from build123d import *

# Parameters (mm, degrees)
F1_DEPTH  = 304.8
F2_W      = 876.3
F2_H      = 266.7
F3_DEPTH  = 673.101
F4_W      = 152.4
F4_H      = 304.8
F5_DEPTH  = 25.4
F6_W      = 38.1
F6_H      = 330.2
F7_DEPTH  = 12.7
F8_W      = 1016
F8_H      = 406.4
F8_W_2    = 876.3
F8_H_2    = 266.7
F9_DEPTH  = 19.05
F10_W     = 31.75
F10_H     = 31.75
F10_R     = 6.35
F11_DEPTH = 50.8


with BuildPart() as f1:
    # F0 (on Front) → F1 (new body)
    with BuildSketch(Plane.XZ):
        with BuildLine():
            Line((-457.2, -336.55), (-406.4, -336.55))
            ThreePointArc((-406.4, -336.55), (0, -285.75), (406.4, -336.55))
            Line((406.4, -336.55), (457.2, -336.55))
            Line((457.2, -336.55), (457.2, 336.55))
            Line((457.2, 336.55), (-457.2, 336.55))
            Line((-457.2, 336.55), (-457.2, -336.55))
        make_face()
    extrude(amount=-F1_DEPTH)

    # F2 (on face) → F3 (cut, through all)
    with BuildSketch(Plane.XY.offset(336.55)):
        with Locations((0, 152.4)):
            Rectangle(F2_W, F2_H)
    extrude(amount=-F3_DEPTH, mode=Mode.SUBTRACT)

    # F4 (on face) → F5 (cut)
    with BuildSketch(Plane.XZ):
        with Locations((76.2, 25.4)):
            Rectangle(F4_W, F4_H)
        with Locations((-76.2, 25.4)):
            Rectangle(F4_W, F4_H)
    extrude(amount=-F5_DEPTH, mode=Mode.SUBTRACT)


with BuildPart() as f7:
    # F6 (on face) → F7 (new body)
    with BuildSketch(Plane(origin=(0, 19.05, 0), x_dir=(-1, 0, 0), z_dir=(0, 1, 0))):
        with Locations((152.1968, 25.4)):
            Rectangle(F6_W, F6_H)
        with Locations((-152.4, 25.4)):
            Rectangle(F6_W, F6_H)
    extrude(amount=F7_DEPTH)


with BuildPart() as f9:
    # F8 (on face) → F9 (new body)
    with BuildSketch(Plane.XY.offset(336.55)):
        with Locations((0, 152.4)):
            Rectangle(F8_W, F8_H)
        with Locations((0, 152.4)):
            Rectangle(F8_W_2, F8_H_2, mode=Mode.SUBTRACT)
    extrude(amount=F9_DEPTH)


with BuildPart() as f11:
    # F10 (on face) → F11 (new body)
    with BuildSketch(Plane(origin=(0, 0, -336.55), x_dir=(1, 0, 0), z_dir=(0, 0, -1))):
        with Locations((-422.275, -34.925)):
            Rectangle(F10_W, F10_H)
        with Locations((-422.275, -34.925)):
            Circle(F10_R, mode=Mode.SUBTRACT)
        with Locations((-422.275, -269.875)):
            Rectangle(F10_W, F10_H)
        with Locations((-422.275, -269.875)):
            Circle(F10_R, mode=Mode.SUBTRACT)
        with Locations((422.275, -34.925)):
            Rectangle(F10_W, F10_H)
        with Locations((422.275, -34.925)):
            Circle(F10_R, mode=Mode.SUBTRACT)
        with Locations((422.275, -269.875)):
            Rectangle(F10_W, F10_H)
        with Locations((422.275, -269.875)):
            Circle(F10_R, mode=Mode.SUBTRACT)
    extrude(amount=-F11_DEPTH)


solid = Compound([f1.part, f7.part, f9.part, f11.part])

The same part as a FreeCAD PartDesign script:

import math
import FreeCAD as App
import Part
import Sketcher

V = App.Vector
Q = App.Units.Quantity

doc = App.newDocument("Part")
body = doc.addObject("PartDesign::Body", "Body")

sketch1 = body.newObject("Sketcher::SketchObject", "Sketch")
sketch1.AttachmentSupport = (doc.getObject("XZ_Plane"), [""])
sketch1.MapMode = "FlatFace"
sketch1.addGeometry(Part.LineSegment(V(-457, -337, 0), V(-406, -337, 0)), False)
sketch1.addGeometry(Part.ArcOfCircle(Part.Circle(V(0, -1937, 0), V(0, 0, 1), 1651), math.radians(76), math.radians(104)), False)
sketch1.addGeometry(Part.LineSegment(V(406, -337, 0), V(457, -337, 0)), False)
sketch1.addGeometry(Part.LineSegment(V(457, -337, 0), V(457, 337, 0)), False)
sketch1.addGeometry(Part.LineSegment(V(457, 337, 0), V(-457, 337, 0)), False)
sketch1.addGeometry(Part.LineSegment(V(-457, 337, 0), V(-457, -337, 0)), False)
sketch1.addConstraint(Sketcher.Constraint("Coincident", 0, 2, 1, 2))
sketch1.addConstraint(Sketcher.Constraint("Coincident", 1, 1, 2, 1))
sketch1.addConstraint(Sketcher.Constraint("Coincident", 2, 2, 3, 1))
sketch1.addConstraint(Sketcher.Constraint("Coincident", 3, 2, 4, 1))
sketch1.addConstraint(Sketcher.Constraint("Coincident", 4, 2, 5, 1))
sketch1.addConstraint(Sketcher.Constraint("Coincident", 5, 2, 0, 1))
sketch1.addConstraint(Sketcher.Constraint("Horizontal", 0))
sketch1.addConstraint(Sketcher.Constraint("Horizontal", 2))
sketch1.addConstraint(Sketcher.Constraint("Vertical", 3))
sketch1.addConstraint(Sketcher.Constraint("Horizontal", 4))
sketch1.addConstraint(Sketcher.Constraint("Vertical", 5))
sketch1.addConstraint(Sketcher.Constraint("Symmetric", 2, 2, 4, 2, -1, 1))
sketch1.addConstraint(Sketcher.Constraint("PointOnObject", 1, 3, -2))
sketch1.addConstraint(Sketcher.Constraint("Horizontal", 2, 2, 5, 2))
sketch1.addConstraint(Sketcher.Constraint("Radius", 1, Q("65 in")))
sketch1.addConstraint(Sketcher.Constraint("DistanceX", 0, 1, 0, 2, Q("2 in")))
sketch1.addConstraint(Sketcher.Constraint("DistanceX", 4, 2, 4, 1, Q("36 in")))
sketch1.addConstraint(Sketcher.Constraint("DistanceY", 3, 1, 3, 2, Q("26.5 in")))
pad1 = body.newObject("PartDesign::Pad", "Pad")
pad1.Profile = sketch1
pad1.Length = Q("12 in")
pad1.Reversed = True

sketch2 = body.newObject("Sketcher::SketchObject", "Sketch001")
sketch2.AttachmentSupport = (doc.getObject("XY_Plane"), [""])
sketch2.MapMode = "FlatFace"
sketch2.AttachmentOffset = App.Placement(V(0, 0, 13.25 * 25.4), App.Rotation())
sketch2.addGeometry(Part.LineSegment(V(-438, 286, 0), V(-438, 19, 0)), False)
sketch2.addGeometry(Part.LineSegment(V(-438, 19, 0), V(438, 19, 0)), False)
sketch2.addGeometry(Part.LineSegment(V(438, 19, 0), V(438, 286, 0)), False)
sketch2.addGeometry(Part.LineSegment(V(438, 286, 0), V(-438, 286, 0)), False)
sketch2.addConstraint(Sketcher.Constraint("Coincident", 0, 2, 1, 1))
sketch2.addConstraint(Sketcher.Constraint("Coincident", 1, 2, 2, 1))
sketch2.addConstraint(Sketcher.Constraint("Coincident", 2, 2, 3, 1))
sketch2.addConstraint(Sketcher.Constraint("Coincident", 3, 2, 0, 1))
sketch2.addConstraint(Sketcher.Constraint("Vertical", 0))
sketch2.addConstraint(Sketcher.Constraint("Horizontal", 1))
sketch2.addConstraint(Sketcher.Constraint("Vertical", 2))
sketch2.addConstraint(Sketcher.Constraint("Horizontal", 3))
sketch2.addConstraint(Sketcher.Constraint("DistanceX", 1, 1, 1, 2, Q("34.5 in")))
sketch2.addConstraint(Sketcher.Constraint("DistanceY", 0, 2, 0, 1, Q("10.5 in")))
sketch2.addConstraint(Sketcher.Constraint("DistanceX", 0, 2, -1, 1, Q("17.25 in")))
sketch2.addConstraint(Sketcher.Constraint("DistanceY", -1, 1, 0, 2, Q("0.75 in")))
pocket1 = body.newObject("PartDesign::Pocket", "Pocket")
pocket1.Profile = sketch2
pocket1.Type = "ThroughAll"

sketch3 = body.newObject("Sketcher::SketchObject", "Sketch002")
sketch3.AttachmentSupport = (doc.getObject("XZ_Plane"), [""])
sketch3.MapMode = "FlatFace"
sketch3.addGeometry(Part.LineSegment(V(152, -127, 0), V(152, 178, 0)), False)
sketch3.addGeometry(Part.LineSegment(V(152, 178, 0), V(-152, 178, 0)), False)
sketch3.addGeometry(Part.LineSegment(V(-152, 178, 0), V(-152, -127, 0)), False)
sketch3.addGeometry(Part.LineSegment(V(-152, -127, 0), V(152, -127, 0)), False)
sketch3.addConstraint(Sketcher.Constraint("Coincident", 0, 2, 1, 1))
sketch3.addConstraint(Sketcher.Constraint("Coincident", 1, 2, 2, 1))
sketch3.addConstraint(Sketcher.Constraint("Coincident", 2, 2, 3, 1))
sketch3.addConstraint(Sketcher.Constraint("Coincident", 3, 2, 0, 1))
sketch3.addConstraint(Sketcher.Constraint("Vertical", 0))
sketch3.addConstraint(Sketcher.Constraint("Horizontal", 1))
sketch3.addConstraint(Sketcher.Constraint("Vertical", 2))
sketch3.addConstraint(Sketcher.Constraint("Horizontal", 3))
sketch3.addConstraint(Sketcher.Constraint("Equal", 3, 0))
sketch3.addConstraint(Sketcher.Constraint("DistanceX", 1, 2, 1, 1, Q("12 in")))
sketch3.addConstraint(Sketcher.Constraint("DistanceX", -1, 1, 0, 2, Q("6 in")))
sketch3.addConstraint(Sketcher.Constraint("DistanceY", -1, 1, 0, 2, Q("7 in")))
pocket2 = body.newObject("PartDesign::Pocket", "Pocket001")
pocket2.Profile = sketch3
pocket2.Length = Q("1 in")
body2 = doc.addObject("PartDesign::Body", "Body001")
body2.AllowCompound = True

sketch4 = body2.newObject("Sketcher::SketchObject", "Sketch003")
sketch4.AttachmentSupport = (doc.getObject("XZ_Plane001"), [""])
sketch4.MapMode = "FlatFace"
sketch4.AttachmentOffset = App.Placement(V(0, 0, -0.75 * 25.4), App.Rotation())
sketch4.addGeometry(Part.LineSegment(V(-133, 190, 0), V(-133, -140, 0)), False)
sketch4.addGeometry(Part.LineSegment(V(-133, -140, 0), V(-171, -140, 0)), False)
sketch4.addGeometry(Part.LineSegment(V(-171, -140, 0), V(-171, 190, 0)), False)
sketch4.addGeometry(Part.LineSegment(V(-171, 190, 0), V(-133, 190, 0)), False)
sketch4.addGeometry(Part.LineSegment(V(171, 190, 0), V(171, -140, 0)), False)
sketch4.addGeometry(Part.LineSegment(V(171, -140, 0), V(133, -140, 0)), False)
sketch4.addGeometry(Part.LineSegment(V(133, -140, 0), V(133, 190, 0)), False)
sketch4.addGeometry(Part.LineSegment(V(133, 190, 0), V(171, 190, 0)), False)
sketch4.addConstraint(Sketcher.Constraint("Coincident", 0, 2, 1, 1))
sketch4.addConstraint(Sketcher.Constraint("Coincident", 1, 2, 2, 1))
sketch4.addConstraint(Sketcher.Constraint("Coincident", 2, 2, 3, 1))
sketch4.addConstraint(Sketcher.Constraint("Coincident", 3, 2, 0, 1))
sketch4.addConstraint(Sketcher.Constraint("Coincident", 4, 2, 5, 1))
sketch4.addConstraint(Sketcher.Constraint("Coincident", 5, 2, 6, 1))
sketch4.addConstraint(Sketcher.Constraint("Coincident", 6, 2, 7, 1))
sketch4.addConstraint(Sketcher.Constraint("Coincident", 7, 2, 4, 1))
sketch4.addConstraint(Sketcher.Constraint("Vertical", 0))
sketch4.addConstraint(Sketcher.Constraint("Horizontal", 1))
sketch4.addConstraint(Sketcher.Constraint("Vertical", 2))
sketch4.addConstraint(Sketcher.Constraint("Horizontal", 3))
sketch4.addConstraint(Sketcher.Constraint("Vertical", 4))
sketch4.addConstraint(Sketcher.Constraint("Horizontal", 5))
sketch4.addConstraint(Sketcher.Constraint("Vertical", 6))
sketch4.addConstraint(Sketcher.Constraint("Horizontal", 7))
sketch4.addConstraint(Sketcher.Constraint("Horizontal", 1, 2, 4, 2))
sketch4.addConstraint(Sketcher.Constraint("Horizontal", 3, 2, 6, 2))
sketch4.addConstraint(Sketcher.Constraint("Equal", 3, 5))
sketch4.addConstraint(Sketcher.Constraint("DistanceY", 0, 2, 0, 1, Q("13 in")))
sketch4.addConstraint(Sketcher.Constraint("DistanceX", 1, 2, 1, 1, Q("1.5 in")))
sketch4.addConstraint(Sketcher.Constraint("DistanceY", 0, 2, -1, 1, Q("5.5 in")))
sketch4.addConstraint(Sketcher.Constraint("DistanceX", -1, 1, 4, 2, Q("6.75 in")))
sketch4.addConstraint(Sketcher.Constraint("DistanceX", 0, 2, -1, 1, Q("5.242 in")))
pad2 = body2.newObject("PartDesign::Pad", "Pad001")
pad2.Profile = sketch4
pad2.Length = Q("0.5 in")
pad2.Reversed = True
body3 = doc.addObject("PartDesign::Body", "Body002")

sketch5 = body3.newObject("Sketcher::SketchObject", "Sketch004")
sketch5.AttachmentSupport = (doc.getObject("XY_Plane002"), [""])
sketch5.MapMode = "FlatFace"
sketch5.AttachmentOffset = App.Placement(V(0, 0, 13.25 * 25.4), App.Rotation())
sketch5.addGeometry(Part.LineSegment(V(-508, 356, 0), V(-508, -51, 0)), False)
sketch5.addGeometry(Part.LineSegment(V(-508, -51, 0), V(508, -51, 0)), False)
sketch5.addGeometry(Part.LineSegment(V(508, -51, 0), V(508, 356, 0)), False)
sketch5.addGeometry(Part.LineSegment(V(508, 356, 0), V(-508, 356, 0)), False)
sketch5.addGeometry(Part.LineSegment(V(438, 19, 0), V(-438, 19, 0)), False)
sketch5.addGeometry(Part.LineSegment(V(-438, 19, 0), V(-438, 286, 0)), False)
sketch5.addGeometry(Part.LineSegment(V(-438, 286, 0), V(438, 286, 0)), False)
sketch5.addGeometry(Part.LineSegment(V(438, 286, 0), V(438, 19, 0)), False)
sketch5.addConstraint(Sketcher.Constraint("Coincident", 0, 2, 1, 1))
sketch5.addConstraint(Sketcher.Constraint("Coincident", 1, 2, 2, 1))
sketch5.addConstraint(Sketcher.Constraint("Coincident", 2, 2, 3, 1))
sketch5.addConstraint(Sketcher.Constraint("Coincident", 3, 2, 0, 1))
sketch5.addConstraint(Sketcher.Constraint("Coincident", 4, 2, 5, 1))
sketch5.addConstraint(Sketcher.Constraint("Coincident", 5, 2, 6, 1))
sketch5.addConstraint(Sketcher.Constraint("Coincident", 6, 2, 7, 1))
sketch5.addConstraint(Sketcher.Constraint("Coincident", 7, 2, 4, 1))
sketch5.addConstraint(Sketcher.Constraint("Vertical", 0))
sketch5.addConstraint(Sketcher.Constraint("Horizontal", 1))
sketch5.addConstraint(Sketcher.Constraint("Vertical", 2))
sketch5.addConstraint(Sketcher.Constraint("Horizontal", 3))
sketch5.addConstraint(Sketcher.Constraint("Horizontal", 4))
sketch5.addConstraint(Sketcher.Constraint("Vertical", 5))
sketch5.addConstraint(Sketcher.Constraint("Horizontal", 6))
sketch5.addConstraint(Sketcher.Constraint("Vertical", 7))
sketch5.addConstraint(Sketcher.Constraint("DistanceX", 1, 1, 1, 2, Q("40 in")))
sketch5.addConstraint(Sketcher.Constraint("DistanceY", 0, 2, 0, 1, Q("16 in")))
sketch5.addConstraint(Sketcher.Constraint("DistanceX", 4, 2, 4, 1, Q("34.5 in")))
sketch5.addConstraint(Sketcher.Constraint("DistanceY", 5, 1, 5, 2, Q("10.5 in")))
sketch5.addConstraint(Sketcher.Constraint("DistanceX", 0, 2, -1, 1, Q("20 in")))
sketch5.addConstraint(Sketcher.Constraint("DistanceY", 0, 2, -1, 1, Q("2 in")))
sketch5.addConstraint(Sketcher.Constraint("DistanceX", 4, 2, -1, 1, Q("17.25 in")))
sketch5.addConstraint(Sketcher.Constraint("DistanceY", -1, 1, 4, 2, Q("0.75 in")))
pad3 = body3.newObject("PartDesign::Pad", "Pad002")
pad3.Profile = sketch5
pad3.Length = Q("0.75 in")
body4 = doc.addObject("PartDesign::Body", "Body003")
body4.AllowCompound = True

sketch6 = body4.newObject("Sketcher::SketchObject", "Sketch005")
sketch6.AttachmentSupport = (doc.getObject("XY_Plane003"), [""])
sketch6.MapMode = "FlatFace"
sketch6.AttachmentOffset = App.Placement(V(0, 0, -13.25 * 25.4), App.Rotation())
sketch6.addGeometry(Part.LineSegment(V(-438, 19, 0), V(-438, 51, 0)), False)
sketch6.addGeometry(Part.LineSegment(V(-438, 51, 0), V(-406, 51, 0)), False)
sketch6.addGeometry(Part.LineSegment(V(-406, 51, 0), V(-406, 19, 0)), False)
sketch6.addGeometry(Part.LineSegment(V(-406, 19, 0), V(-438, 19, 0)), False)
sketch6.addGeometry(Part.Circle(V(-422, 35, 0), V(0, 0, 1), 6), False)
sketch6.addGeometry(Part.LineSegment(V(-438, 254, 0), V(-438, 286, 0)), False)
sketch6.addGeometry(Part.LineSegment(V(-438, 286, 0), V(-406, 286, 0)), False)
sketch6.addGeometry(Part.LineSegment(V(-406, 286, 0), V(-406, 254, 0)), False)
sketch6.addGeometry(Part.LineSegment(V(-406, 254, 0), V(-438, 254, 0)), False)
sketch6.addGeometry(Part.Circle(V(-422, 270, 0), V(0, 0, 1), 6), False)
sketch6.addGeometry(Part.LineSegment(V(406, 19, 0), V(406, 51, 0)), False)
sketch6.addGeometry(Part.LineSegment(V(406, 51, 0), V(438, 51, 0)), False)
sketch6.addGeometry(Part.LineSegment(V(438, 51, 0), V(438, 19, 0)), False)
sketch6.addGeometry(Part.LineSegment(V(438, 19, 0), V(406, 19, 0)), False)
sketch6.addGeometry(Part.Circle(V(422, 35, 0), V(0, 0, 1), 6), False)
sketch6.addGeometry(Part.LineSegment(V(406, 254, 0), V(406, 286, 0)), False)
sketch6.addGeometry(Part.LineSegment(V(406, 286, 0), V(438, 286, 0)), False)
sketch6.addGeometry(Part.LineSegment(V(438, 286, 0), V(438, 254, 0)), False)
sketch6.addGeometry(Part.LineSegment(V(438, 254, 0), V(406, 254, 0)), False)
sketch6.addGeometry(Part.Circle(V(422, 270, 0), V(0, 0, 1), 6), False)
sketch6.addConstraint(Sketcher.Constraint("Coincident", 0, 2, 1, 1))
sketch6.addConstraint(Sketcher.Constraint("Coincident", 1, 2, 2, 1))
sketch6.addConstraint(Sketcher.Constraint("Coincident", 2, 2, 3, 1))
sketch6.addConstraint(Sketcher.Constraint("Coincident", 3, 2, 0, 1))
sketch6.addConstraint(Sketcher.Constraint("Coincident", 5, 2, 6, 1))
sketch6.addConstraint(Sketcher.Constraint("Coincident", 6, 2, 7, 1))
sketch6.addConstraint(Sketcher.Constraint("Coincident", 7, 2, 8, 1))
sketch6.addConstraint(Sketcher.Constraint("Coincident", 8, 2, 5, 1))
sketch6.addConstraint(Sketcher.Constraint("Coincident", 10, 2, 11, 1))
sketch6.addConstraint(Sketcher.Constraint("Coincident", 11, 2, 12, 1))
sketch6.addConstraint(Sketcher.Constraint("Coincident", 12, 2, 13, 1))
sketch6.addConstraint(Sketcher.Constraint("Coincident", 13, 2, 10, 1))
sketch6.addConstraint(Sketcher.Constraint("Coincident", 15, 2, 16, 1))
sketch6.addConstraint(Sketcher.Constraint("Coincident", 16, 2, 17, 1))
sketch6.addConstraint(Sketcher.Constraint("Coincident", 17, 2, 18, 1))
sketch6.addConstraint(Sketcher.Constraint("Coincident", 18, 2, 15, 1))
sketch6.addConstraint(Sketcher.Constraint("Vertical", 0))
sketch6.addConstraint(Sketcher.Constraint("Horizontal", 1))
sketch6.addConstraint(Sketcher.Constraint("Vertical", 2))
sketch6.addConstraint(Sketcher.Constraint("Horizontal", 3))
sketch6.addConstraint(Sketcher.Constraint("Vertical", 5))
sketch6.addConstraint(Sketcher.Constraint("Horizontal", 6))
sketch6.addConstraint(Sketcher.Constraint("Vertical", 7))
sketch6.addConstraint(Sketcher.Constraint("Horizontal", 8))
sketch6.addConstraint(Sketcher.Constraint("Vertical", 10))
sketch6.addConstraint(Sketcher.Constraint("Horizontal", 11))
sketch6.addConstraint(Sketcher.Constraint("Vertical", 12))
sketch6.addConstraint(Sketcher.Constraint("Horizontal", 13))
sketch6.addConstraint(Sketcher.Constraint("Vertical", 15))
sketch6.addConstraint(Sketcher.Constraint("Horizontal", 16))
sketch6.addConstraint(Sketcher.Constraint("Vertical", 17))
sketch6.addConstraint(Sketcher.Constraint("Horizontal", 18))
sketch6.addConstraint(Sketcher.Constraint("Equal", 4, 9))
sketch6.addConstraint(Sketcher.Constraint("Equal", 9, 14))
sketch6.addConstraint(Sketcher.Constraint("Equal", 14, 19))
sketch6.addConstraint(Sketcher.Constraint("Symmetric", 4, 3, 14, 3, -2))
sketch6.addConstraint(Sketcher.Constraint("Symmetric", 9, 3, 19, 3, -2))
sketch6.addConstraint(Sketcher.Constraint("Symmetric", 1, 2, 10, 2, -2))
sketch6.addConstraint(Sketcher.Constraint("Symmetric", 3, 2, 12, 2, -2))
sketch6.addConstraint(Sketcher.Constraint("Symmetric", 6, 2, 15, 2, -2))
sketch6.addConstraint(Sketcher.Constraint("Symmetric", 8, 2, 17, 2, -2))
sketch6.addConstraint(Sketcher.Constraint("Vertical", 4, 3, 9, 3))
sketch6.addConstraint(Sketcher.Constraint("Vertical", 3, 2, 5, 2))
sketch6.addConstraint(Sketcher.Constraint("Vertical", 2, 2, 6, 2))
sketch6.addConstraint(Sketcher.Constraint("Equal", 18, 0))
sketch6.addConstraint(Sketcher.Constraint("Equal", 2, 5))
sketch6.addConstraint(Sketcher.Constraint("Diameter", 4, Q("0.5 in")))
sketch6.addConstraint(Sketcher.Constraint("DistanceY", -1, 1, 0, 2, Q("2 in")))
sketch6.addConstraint(Sketcher.Constraint("DistanceX", 1, 2, -1, 1, Q("16 in")))
sketch6.addConstraint(Sketcher.Constraint("DistanceY", -1, 1, 7, 2, Q("10 in")))
sketch6.addConstraint(Sketcher.Constraint("DistanceX", 1, 1, 1, 2, Q("1.25 in")))
sketch6.addConstraint(Sketcher.Constraint("DistanceY", 4, 3, 9, 3, Q("9.25 in")))
sketch6.addConstraint(Sketcher.Constraint("DistanceX", 4, 3, 14, 3, Q("33.25 in")))
sketch6.addConstraint(Sketcher.Constraint("DistanceY", -1, 1, 4, 3, Q("1.375 in")))
pad4 = body4.newObject("PartDesign::Pad", "Pad003")
pad4.Profile = sketch6
pad4.Length = Q("2 in")

doc.recompute()
